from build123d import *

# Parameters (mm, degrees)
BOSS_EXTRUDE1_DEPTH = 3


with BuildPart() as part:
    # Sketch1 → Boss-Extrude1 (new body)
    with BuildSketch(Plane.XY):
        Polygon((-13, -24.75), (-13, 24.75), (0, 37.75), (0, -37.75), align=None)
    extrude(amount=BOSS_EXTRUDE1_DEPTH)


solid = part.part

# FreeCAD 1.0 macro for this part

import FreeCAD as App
import Part
import Sketcher
Q = App.Units.Quantity

doc = App.newDocument("Part")
body = doc.addObject("PartDesign::Body", "Body")

# Sketch on XY plane
sketch1 = body.newObject("Sketcher::SketchObject", "Sketch")
sketch1.AttachmentSupport = (doc.getObject("XY_Plane"), [""])
sketch1.MapMode = "FlatFace"
sketch1.addGeometry([
    Part.LineSegment(App.Vector(-13, 24.75, 0), App.Vector(-13, -24.75, 0)),
    Part.LineSegment(App.Vector(-13, -24.75, 0), App.Vector(0, -37.75, 0)),
    Part.LineSegment(App.Vector(0, -37.75, 0), App.Vector(0, 37.75, 0)),
    Part.LineSegment(App.Vector(0, 37.75, 0), App.Vector(-13, 24.75, 0)),
], False)
sketch1.addConstraint([
    Sketcher.Constraint("Coincident", 0, 2, 1, 1),
    Sketcher.Constraint("Coincident", 1, 2, 2, 1),
    Sketcher.Constraint("Coincident", 2, 2, 3, 1),
    Sketcher.Constraint("Coincident", 3, 2, 0, 1),
    Sketcher.Constraint("Vertical", 0),
    Sketcher.Constraint("Vertical", 2),
    Sketcher.Constraint("Symmetric", 1, 2, 2, 2, -1, 1),
    Sketcher.Constraint("Perpendicular", 1, 3),
    Sketcher.Constraint("Equal", 1, 3),
    Sketcher.Constraint("DistanceY", 0, 2, 0, 1, Q("49.5 mm")),
    Sketcher.Constraint("DistanceY", 2, 1, 2, 2, Q("75.5 mm")),
])
pad1 = body.newObject("PartDesign::Pad", "Pad")
pad1.Profile = sketch1
pad1.Length = 3

doc.recompute()
